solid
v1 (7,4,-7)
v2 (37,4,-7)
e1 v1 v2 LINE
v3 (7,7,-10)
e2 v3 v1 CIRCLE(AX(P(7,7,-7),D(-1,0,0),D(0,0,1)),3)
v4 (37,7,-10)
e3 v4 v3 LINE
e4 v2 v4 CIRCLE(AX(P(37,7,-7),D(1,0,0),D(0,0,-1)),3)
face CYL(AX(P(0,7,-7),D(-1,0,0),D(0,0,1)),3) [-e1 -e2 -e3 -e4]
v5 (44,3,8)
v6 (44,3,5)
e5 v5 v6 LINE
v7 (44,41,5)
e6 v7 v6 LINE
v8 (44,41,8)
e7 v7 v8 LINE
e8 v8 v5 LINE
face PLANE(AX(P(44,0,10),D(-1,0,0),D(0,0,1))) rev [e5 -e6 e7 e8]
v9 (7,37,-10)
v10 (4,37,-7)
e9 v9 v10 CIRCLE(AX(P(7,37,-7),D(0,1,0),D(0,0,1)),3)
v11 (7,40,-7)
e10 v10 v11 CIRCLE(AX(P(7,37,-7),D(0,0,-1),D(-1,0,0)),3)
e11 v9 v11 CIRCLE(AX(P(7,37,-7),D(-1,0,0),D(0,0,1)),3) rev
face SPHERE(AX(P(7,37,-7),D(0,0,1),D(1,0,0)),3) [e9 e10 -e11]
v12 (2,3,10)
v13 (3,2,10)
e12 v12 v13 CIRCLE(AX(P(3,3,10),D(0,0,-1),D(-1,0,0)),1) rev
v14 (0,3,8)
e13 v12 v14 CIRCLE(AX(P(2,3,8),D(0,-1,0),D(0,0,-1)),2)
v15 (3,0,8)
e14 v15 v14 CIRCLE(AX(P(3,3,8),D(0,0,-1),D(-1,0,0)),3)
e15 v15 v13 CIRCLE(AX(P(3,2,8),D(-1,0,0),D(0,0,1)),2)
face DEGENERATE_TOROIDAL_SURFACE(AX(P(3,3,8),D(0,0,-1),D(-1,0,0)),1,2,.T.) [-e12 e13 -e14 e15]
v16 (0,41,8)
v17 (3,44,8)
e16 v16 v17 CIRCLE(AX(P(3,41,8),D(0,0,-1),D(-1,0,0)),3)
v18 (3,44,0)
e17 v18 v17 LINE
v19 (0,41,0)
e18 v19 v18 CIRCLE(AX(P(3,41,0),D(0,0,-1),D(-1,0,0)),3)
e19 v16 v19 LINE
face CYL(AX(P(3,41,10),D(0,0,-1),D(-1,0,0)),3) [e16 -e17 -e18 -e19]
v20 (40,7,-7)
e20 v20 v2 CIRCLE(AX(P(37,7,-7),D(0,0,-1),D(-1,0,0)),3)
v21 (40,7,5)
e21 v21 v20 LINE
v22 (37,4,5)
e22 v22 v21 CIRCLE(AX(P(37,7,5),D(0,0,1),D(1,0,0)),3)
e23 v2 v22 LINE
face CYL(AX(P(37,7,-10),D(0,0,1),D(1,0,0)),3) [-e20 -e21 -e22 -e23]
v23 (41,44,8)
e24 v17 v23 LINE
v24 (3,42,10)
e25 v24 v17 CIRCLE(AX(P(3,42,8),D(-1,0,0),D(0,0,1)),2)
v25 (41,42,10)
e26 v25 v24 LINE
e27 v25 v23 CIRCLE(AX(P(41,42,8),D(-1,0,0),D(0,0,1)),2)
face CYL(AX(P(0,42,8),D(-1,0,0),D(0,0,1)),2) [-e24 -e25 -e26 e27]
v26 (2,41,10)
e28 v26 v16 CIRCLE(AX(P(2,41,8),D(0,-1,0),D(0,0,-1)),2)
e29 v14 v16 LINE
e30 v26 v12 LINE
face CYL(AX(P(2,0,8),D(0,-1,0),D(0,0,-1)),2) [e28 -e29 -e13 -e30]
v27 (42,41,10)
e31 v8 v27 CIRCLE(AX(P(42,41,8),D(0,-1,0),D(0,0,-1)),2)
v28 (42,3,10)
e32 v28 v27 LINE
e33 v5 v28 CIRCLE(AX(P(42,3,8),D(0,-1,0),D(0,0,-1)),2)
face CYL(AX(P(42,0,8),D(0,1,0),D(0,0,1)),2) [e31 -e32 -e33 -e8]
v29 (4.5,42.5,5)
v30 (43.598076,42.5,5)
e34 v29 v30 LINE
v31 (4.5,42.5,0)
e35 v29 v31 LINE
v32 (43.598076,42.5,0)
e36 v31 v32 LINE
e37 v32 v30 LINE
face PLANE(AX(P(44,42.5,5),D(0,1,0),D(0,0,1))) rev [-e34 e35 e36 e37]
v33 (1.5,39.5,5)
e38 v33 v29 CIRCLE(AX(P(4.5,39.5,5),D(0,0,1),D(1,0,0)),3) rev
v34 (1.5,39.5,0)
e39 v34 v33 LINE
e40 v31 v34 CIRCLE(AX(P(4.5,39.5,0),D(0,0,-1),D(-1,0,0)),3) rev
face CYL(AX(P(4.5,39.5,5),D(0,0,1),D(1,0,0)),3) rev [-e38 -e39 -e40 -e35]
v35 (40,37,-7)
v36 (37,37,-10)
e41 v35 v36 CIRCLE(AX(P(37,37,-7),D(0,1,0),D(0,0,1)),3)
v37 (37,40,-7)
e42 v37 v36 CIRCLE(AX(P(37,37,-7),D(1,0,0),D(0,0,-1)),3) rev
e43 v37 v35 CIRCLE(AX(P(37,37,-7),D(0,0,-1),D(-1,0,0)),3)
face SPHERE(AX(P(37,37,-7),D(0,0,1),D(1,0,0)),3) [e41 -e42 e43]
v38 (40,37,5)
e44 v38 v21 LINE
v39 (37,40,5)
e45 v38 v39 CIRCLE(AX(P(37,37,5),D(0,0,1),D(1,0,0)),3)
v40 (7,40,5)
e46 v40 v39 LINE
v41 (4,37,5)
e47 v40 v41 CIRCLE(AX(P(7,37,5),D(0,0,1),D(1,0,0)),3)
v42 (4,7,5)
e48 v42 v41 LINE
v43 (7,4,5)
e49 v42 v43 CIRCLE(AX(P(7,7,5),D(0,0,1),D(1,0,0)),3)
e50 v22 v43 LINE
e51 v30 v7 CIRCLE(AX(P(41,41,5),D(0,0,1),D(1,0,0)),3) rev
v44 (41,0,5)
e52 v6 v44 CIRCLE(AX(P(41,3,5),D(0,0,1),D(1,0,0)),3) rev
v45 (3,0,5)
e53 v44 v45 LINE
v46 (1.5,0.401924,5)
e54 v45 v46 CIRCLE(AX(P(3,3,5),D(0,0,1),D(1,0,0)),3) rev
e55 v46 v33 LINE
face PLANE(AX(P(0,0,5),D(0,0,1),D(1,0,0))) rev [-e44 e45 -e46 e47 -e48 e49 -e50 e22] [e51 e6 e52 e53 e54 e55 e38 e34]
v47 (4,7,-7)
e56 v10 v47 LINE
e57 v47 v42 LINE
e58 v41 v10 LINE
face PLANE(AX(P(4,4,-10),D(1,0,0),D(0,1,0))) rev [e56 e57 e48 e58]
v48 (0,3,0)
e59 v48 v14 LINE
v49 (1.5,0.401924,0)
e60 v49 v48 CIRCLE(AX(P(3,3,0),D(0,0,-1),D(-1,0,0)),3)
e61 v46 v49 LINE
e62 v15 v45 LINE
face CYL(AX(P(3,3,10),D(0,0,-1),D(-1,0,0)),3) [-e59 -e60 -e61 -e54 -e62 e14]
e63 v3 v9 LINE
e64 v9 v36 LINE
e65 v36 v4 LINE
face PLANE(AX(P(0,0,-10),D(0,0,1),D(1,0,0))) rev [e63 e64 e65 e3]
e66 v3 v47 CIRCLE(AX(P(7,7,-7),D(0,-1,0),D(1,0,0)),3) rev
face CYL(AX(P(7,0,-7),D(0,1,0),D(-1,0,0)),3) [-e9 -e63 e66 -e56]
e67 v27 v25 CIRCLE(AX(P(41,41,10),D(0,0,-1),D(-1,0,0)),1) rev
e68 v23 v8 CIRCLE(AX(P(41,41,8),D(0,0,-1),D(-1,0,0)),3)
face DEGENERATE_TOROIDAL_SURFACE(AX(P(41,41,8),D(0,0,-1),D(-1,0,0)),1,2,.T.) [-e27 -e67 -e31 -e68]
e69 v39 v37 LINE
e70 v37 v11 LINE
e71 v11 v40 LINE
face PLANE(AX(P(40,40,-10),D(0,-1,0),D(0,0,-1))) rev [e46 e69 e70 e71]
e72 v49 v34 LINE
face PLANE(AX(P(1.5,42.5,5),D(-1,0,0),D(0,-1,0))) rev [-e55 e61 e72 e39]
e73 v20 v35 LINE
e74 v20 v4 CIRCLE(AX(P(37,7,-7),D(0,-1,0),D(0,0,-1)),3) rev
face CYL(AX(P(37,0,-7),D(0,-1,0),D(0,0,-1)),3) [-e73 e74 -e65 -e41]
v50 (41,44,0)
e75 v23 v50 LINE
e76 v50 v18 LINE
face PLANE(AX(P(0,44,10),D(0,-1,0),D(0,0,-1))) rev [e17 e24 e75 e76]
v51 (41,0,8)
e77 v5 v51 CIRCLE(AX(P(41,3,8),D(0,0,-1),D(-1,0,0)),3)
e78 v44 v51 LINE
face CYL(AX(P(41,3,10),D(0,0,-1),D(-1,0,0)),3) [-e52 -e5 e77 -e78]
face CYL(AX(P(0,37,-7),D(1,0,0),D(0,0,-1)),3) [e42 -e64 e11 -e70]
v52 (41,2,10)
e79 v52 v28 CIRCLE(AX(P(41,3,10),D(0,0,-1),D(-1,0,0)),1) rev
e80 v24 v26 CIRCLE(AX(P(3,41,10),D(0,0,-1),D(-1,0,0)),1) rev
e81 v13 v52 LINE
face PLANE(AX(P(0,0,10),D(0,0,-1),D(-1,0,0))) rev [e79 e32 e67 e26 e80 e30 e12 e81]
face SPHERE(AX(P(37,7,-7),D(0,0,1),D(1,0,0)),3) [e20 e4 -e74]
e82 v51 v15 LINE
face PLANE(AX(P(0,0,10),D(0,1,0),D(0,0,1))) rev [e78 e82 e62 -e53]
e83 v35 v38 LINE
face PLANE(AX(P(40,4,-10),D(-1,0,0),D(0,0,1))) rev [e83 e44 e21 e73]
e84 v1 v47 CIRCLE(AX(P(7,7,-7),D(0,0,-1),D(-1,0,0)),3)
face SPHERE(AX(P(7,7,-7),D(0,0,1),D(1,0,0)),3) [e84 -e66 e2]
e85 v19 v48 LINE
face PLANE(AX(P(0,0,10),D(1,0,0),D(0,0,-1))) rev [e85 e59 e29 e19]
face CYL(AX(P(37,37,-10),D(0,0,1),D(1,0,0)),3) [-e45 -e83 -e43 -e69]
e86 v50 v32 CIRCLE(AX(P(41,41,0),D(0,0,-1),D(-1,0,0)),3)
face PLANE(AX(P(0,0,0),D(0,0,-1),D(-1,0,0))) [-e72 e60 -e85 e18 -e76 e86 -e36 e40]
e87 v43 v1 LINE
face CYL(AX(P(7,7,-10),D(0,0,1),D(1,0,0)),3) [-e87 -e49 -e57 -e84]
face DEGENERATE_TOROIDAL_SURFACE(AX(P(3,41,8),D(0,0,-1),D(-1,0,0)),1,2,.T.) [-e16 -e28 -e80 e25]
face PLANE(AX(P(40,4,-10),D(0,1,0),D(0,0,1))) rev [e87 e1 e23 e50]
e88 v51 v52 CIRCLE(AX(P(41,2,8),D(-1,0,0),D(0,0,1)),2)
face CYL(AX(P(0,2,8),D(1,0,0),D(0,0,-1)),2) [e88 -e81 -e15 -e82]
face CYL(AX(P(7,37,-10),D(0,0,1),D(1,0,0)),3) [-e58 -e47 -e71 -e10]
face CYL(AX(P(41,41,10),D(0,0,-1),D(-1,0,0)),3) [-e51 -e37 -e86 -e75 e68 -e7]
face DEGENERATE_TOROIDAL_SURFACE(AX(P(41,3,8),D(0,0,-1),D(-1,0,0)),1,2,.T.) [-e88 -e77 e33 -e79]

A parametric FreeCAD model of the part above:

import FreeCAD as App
import Part
import Sketcher
Q = App.Units.Quantity


def edges_at(feature, points):
    """Names of the edges that pass closest to the given points."""
    edges = feature.Shape.Edges
    near = lambda p: min(range(len(edges)), key=lambda i: edges[i].distToShape(Part.Vertex(*p))[0])
    return sorted({f"Edge{near(p) + 1}" for p in points})


def add_polygon(sketch, points):
    """Adds a closed chain of lines whose ends are joined by coincident constraints."""
    first, n = sketch.GeometryCount, len(points)
    for a, b in zip(points, points[1:] + points[:1]):
        sketch.addGeometry(Part.LineSegment(App.Vector(*a, 0), App.Vector(*b, 0)), False)
    for i in range(n):
        sketch.addConstraint(Sketcher.Constraint("Coincident", first + i, 2, first + (i + 1) % n, 1))

doc = App.newDocument("Part")
body = doc.addObject("PartDesign::Body", "Body")

# Sketch on XY plane
sketch1 = doc.addObject("Sketcher::SketchObject", "Sketch")
body.addObject(sketch1)
sketch1.AttachmentSupport = (doc.XY_Plane, [""])
sketch1.MapMode = "FlatFace"
add_polygon(sketch1, [(0, 44), (0, 0), (44, 0), (44, 44)])  # lines 0-3
sketch1.addConstraint(Sketcher.Constraint("Vertical", 0))
sketch1.addConstraint(Sketcher.Constraint("Horizontal", 1))
sketch1.addConstraint(Sketcher.Constraint("Vertical", 2))
sketch1.addConstraint(Sketcher.Constraint("Horizontal", 3))
sketch1.addConstraint(Sketcher.Constraint("Coincident", 0, 2, -1, 1))
sketch1.addConstraint(Sketcher.Constraint("Equal", 3, 0))
sketch1.addConstraint(Sketcher.Constraint("DistanceX", 1, 1, 1, 2, Q("44 mm")))
pad1 = doc.addObject("PartDesign::Pad", "Pad")
body.addObject(pad1)
pad1.Profile = sketch1
pad1.Length = 10

# Sketch on XY plane
sketch2 = doc.addObject("Sketcher::SketchObject", "Sketch001")
body.addObject(sketch2)
sketch2.AttachmentSupport = (doc.XY_Plane, [""])
sketch2.MapMode = "FlatFace"
add_polygon(sketch2, [(40, 40), (40, 4), (4, 4), (4, 40)])  # lines 0-3
sketch2.addConstraint(Sketcher.Constraint("Vertical", 0))
sketch2.addConstraint(Sketcher.Constraint("Horizontal", 1))
sketch2.addConstraint(Sketcher.Constraint("Vertical", 2))
sketch2.addConstraint(Sketcher.Constraint("Horizontal", 3))
sketch2.addConstraint(Sketcher.Constraint("Equal", 3, 0))
sketch2.addConstraint(Sketcher.Constraint("DistanceX", 1, 2, 1, 1, Q("36 mm")))
sketch2.addConstraint(Sketcher.Constraint("DistanceX", -1, 1, 0, 2, Q("40 mm")))
sketch2.addConstraint(Sketcher.Constraint("DistanceY", -1, 1, 0, 2, Q("4 mm")))
pad2 = doc.addObject("PartDesign::Pad", "Pad001")
body.addObject(pad2)
pad2.Profile = sketch2
pad2.Length = 10
pad2.Reversed = True

# Sketch on XY plane
sketch3 = doc.addObject("Sketcher::SketchObject", "Sketch002")
body.addObject(sketch3)
sketch3.AttachmentSupport = (doc.XY_Plane, [""])
sketch3.MapMode = "FlatFace"
add_polygon(sketch3, [(44, 42), (44, 0), (2, 0), (2, 42)])  # lines 0-3
add_polygon(sketch3, [(4, 4), (40, 4), (40, 40), (4, 40)])  # lines 4-7
sketch3.addConstraint(Sketcher.Constraint("Vertical", 0))
sketch3.addConstraint(Sketcher.Constraint("Horizontal", 1))
sketch3.addConstraint(Sketcher.Constraint("Vertical", 2))
sketch3.addConstraint(Sketcher.Constraint("Horizontal", 3))
sketch3.addConstraint(Sketcher.Constraint("Horizontal", 4))
sketch3.addConstraint(Sketcher.Constraint("Vertical", 5))
sketch3.addConstraint(Sketcher.Constraint("Horizontal", 6))
sketch3.addConstraint(Sketcher.Constraint("Vertical", 7))
sketch3.addConstraint(Sketcher.Constraint("PointOnObject", 0, 2, -1))
sketch3.addConstraint(Sketcher.Constraint("Equal", 3, 0))
sketch3.addConstraint(Sketcher.Constraint("Equal", 6, 5))
sketch3.addConstraint(Sketcher.Constraint("DistanceX", 4, 1, 4, 2, Q("36 mm")))
sketch3.addConstraint(Sketcher.Constraint("DistanceX", 1, 2, 1, 1, Q("42.5 mm")))
sketch3.addConstraint(Sketcher.Constraint("DistanceX", -1, 1, 0, 2, Q("44 mm")))
sketch3.addConstraint(Sketcher.Constraint("DistanceX", -1, 1, 4, 2, Q("40 mm")))
sketch3.addConstraint(Sketcher.Constraint("DistanceY", -1, 1, 4, 2, Q("4 mm")))
pocket1 = doc.addObject("PartDesign::Pocket", "Pocket")
body.addObject(pocket1)
pocket1.Profile = sketch3
pocket1.Length = 5
pocket1.Reversed = True
doc.recompute()

fillet = doc.addObject("PartDesign::Fillet", "Fillet")
body.addObject(fillet)
fillet.Base = (pocket1, edges_at(pocket1, [
    (22, 40, -10),
    (4, 22, -10),
    (22, 4, -10),
    (40, 22, -10),
    (44, 0, 7.5),
    (44, 44, 5),
    (0, 0, 5),
    (0, 44, 5),
    (1.5, 42.5, 2.5),
    (4, 4, -2.5),
    (4, 40, -2.5),
    (40, 4, -2.5),
    (40, 40, -2.5),
]))
fillet.Radius = 3
doc.recompute()

fillet2 = doc.addObject("PartDesign::Fillet", "Fillet001")
body.addObject(fillet2)
fillet2.Base = (fillet, edges_at(fillet, [
    (44, 22, 10),
    (22, 0, 10),
    (0, 22, 10),
    (22, 44, 10),
    (0.879, 43.121, 10),
    (0.879, 0.879, 10),
    (43.121, 43.121, 10),
    (43.121, 0.879, 10),
]))
fillet2.Radius = 2

doc.recompute()
